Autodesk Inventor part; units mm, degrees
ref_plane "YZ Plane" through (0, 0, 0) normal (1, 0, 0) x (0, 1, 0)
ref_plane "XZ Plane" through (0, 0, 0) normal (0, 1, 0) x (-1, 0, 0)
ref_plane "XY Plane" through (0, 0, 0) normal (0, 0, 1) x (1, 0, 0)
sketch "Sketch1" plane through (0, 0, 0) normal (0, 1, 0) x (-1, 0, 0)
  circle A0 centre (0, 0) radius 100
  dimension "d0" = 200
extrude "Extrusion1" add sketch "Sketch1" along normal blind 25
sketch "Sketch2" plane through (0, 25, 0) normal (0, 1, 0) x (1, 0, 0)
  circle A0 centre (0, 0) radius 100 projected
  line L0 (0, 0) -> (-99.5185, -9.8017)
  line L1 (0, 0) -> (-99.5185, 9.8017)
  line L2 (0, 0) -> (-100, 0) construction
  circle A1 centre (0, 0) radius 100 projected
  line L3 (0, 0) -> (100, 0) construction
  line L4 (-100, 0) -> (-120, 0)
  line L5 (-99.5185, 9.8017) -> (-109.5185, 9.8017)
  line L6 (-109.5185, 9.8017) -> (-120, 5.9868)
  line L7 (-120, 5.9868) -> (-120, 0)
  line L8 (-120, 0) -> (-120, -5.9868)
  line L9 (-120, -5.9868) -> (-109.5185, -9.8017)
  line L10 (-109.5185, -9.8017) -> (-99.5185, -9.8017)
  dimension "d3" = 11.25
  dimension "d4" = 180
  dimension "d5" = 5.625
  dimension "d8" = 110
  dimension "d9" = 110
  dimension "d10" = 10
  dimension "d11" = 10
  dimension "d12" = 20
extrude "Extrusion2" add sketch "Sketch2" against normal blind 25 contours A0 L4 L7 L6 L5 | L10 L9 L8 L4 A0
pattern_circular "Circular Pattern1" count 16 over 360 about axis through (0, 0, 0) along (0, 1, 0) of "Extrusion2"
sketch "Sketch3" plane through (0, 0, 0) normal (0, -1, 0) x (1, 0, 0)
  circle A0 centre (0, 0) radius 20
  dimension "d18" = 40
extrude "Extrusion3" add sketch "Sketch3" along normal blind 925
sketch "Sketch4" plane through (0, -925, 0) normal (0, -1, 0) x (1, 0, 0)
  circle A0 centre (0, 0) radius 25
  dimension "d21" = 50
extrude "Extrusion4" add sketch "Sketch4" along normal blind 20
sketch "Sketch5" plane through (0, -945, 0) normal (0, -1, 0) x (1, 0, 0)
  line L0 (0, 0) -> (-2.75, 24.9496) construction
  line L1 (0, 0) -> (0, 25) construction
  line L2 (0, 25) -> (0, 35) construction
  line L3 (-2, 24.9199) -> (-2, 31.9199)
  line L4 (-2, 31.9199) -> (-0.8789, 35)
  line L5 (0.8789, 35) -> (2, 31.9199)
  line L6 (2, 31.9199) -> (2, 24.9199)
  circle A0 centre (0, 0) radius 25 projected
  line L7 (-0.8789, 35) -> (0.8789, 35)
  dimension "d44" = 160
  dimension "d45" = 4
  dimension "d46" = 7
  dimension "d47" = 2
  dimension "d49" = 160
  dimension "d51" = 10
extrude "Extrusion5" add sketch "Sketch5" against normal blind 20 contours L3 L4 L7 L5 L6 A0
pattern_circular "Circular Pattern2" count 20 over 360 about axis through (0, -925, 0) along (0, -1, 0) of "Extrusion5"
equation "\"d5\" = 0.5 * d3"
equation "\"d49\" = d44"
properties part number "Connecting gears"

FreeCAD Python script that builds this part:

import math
import FreeCAD as App
import Part
import Sketcher
Q = App.Units.Quantity

doc = App.newDocument("Part")
body = doc.addObject("PartDesign::Body", "Body")

sketch1 = body.newObject("Sketcher::SketchObject", "Sketch")
sketch1.AttachmentSupport = (doc.getObject("XZ_Plane"), [""])
sketch1.MapMode = "FlatFace"
sketch1.addGeometry(Part.Circle(App.Vector(0, 0, 0), App.Vector(0, 0, 1), 100), False)
sketch1.addConstraint([
    Sketcher.Constraint("Coincident", 0, 3, -1, 1),
    Sketcher.Constraint("Diameter", 0, 200.0),
])
pad1 = body.newObject("PartDesign::Pad", "Pad")
pad1.Profile = sketch1
pad1.Length = 25
pad1.Reversed = True

sketch2 = body.newObject("Sketcher::SketchObject", "Sketch001")
sketch2.AttachmentSupport = (doc.getObject("XZ_Plane"), [""])
sketch2.MapMode = "FlatFace"
sketch2.AttachmentOffset = App.Placement(App.Vector(0, 0, -25), App.Rotation())
sketch2.addGeometry([
    Part.LineSegment(App.Vector(-100, -10, 0), App.Vector(-110, -10, 0)),
    Part.LineSegment(App.Vector(-110, -10, 0), App.Vector(-120, -6, 0)),
    Part.LineSegment(App.Vector(-120, -6, 0), App.Vector(-120, 6, 0)),
    Part.LineSegment(App.Vector(-120, 6, 0), App.Vector(-110, 10, 0)),
    Part.LineSegment(App.Vector(-110, 10, 0), App.Vector(-100, 10, 0)),
    Part.ArcOfCircle(Part.Circle(App.Vector(0, 0, 0), App.Vector(0, 0, 1), 100), math.radians(174.38), math.radians(185.62)),
], False)
sketch2.addConstraint([
    Sketcher.Constraint("Coincident", 0, 2, 1, 1),
    Sketcher.Constraint("Coincident", 1, 2, 2, 1),
    Sketcher.Constraint("Coincident", 2, 2, 3, 1),
    Sketcher.Constraint("Coincident", 3, 2, 4, 1),
    Sketcher.Constraint("Coincident", 4, 2, 5, 1),
    Sketcher.Constraint("Coincident", 5, 2, 0, 1),
    Sketcher.Constraint("Horizontal", 0),
    Sketcher.Constraint("Vertical", 2),
    Sketcher.Constraint("Horizontal", 4),
    Sketcher.Constraint("Coincident", 5, 3, -1, 1),
    Sketcher.Constraint("Symmetric", 0, 2, 3, 2, -1),
    Sketcher.Constraint("Equal", 1, 3),
    Sketcher.Constraint("DistanceX", 0, 2, 0, 1, 10.0),
    Sketcher.Constraint("Angle", 3, Q("19.9997 deg")),
    Sketcher.Constraint("Radius", 5, 100.0),
    Sketcher.Constraint("DistanceX", 1, 2, -1, 1, 120.0),
    Sketcher.Constraint("DistanceY", 2, 1, 2, 2, 11.9736),
])
pad2 = body.newObject("PartDesign::Pad", "Pad001")
pad2.Profile = sketch2
pad2.Length = 25
doc.recompute()

polarpattern = body.newObject("PartDesign::PolarPattern", "PolarPattern")
polarpattern.Originals = [pad2]
polarpattern.Axis = (doc.getObject("Y_Axis"), [""])
polarpattern.Angle = 360
polarpattern.Occurrences = 16
body.Tip = polarpattern

sketch3 = body.newObject("Sketcher::SketchObject", "Sketch002")
sketch3.AttachmentSupport = (doc.getObject("XZ_Plane"), [""])
sketch3.MapMode = "FlatFace"
sketch3.addGeometry(Part.Circle(App.Vector(0, 0, 0), App.Vector(0, 0, 1), 20), False)
sketch3.addConstraint([
    Sketcher.Constraint("Coincident", 0, 3, -1, 1),
    Sketcher.Constraint("Diameter", 0, 40.0),
])
pad3 = body.newObject("PartDesign::Pad", "Pad002")
pad3.Profile = sketch3
pad3.Length = 925

sketch4 = body.newObject("Sketcher::SketchObject", "Sketch003")
sketch4.AttachmentSupport = (doc.getObject("XZ_Plane"), [""])
sketch4.MapMode = "FlatFace"
sketch4.AttachmentOffset = App.Placement(App.Vector(0, 0, 925), App.Rotation())
sketch4.addGeometry(Part.Circle(App.Vector(0, 0, 0), App.Vector(0, 0, 1), 25), False)
sketch4.addConstraint([
    Sketcher.Constraint("Coincident", 0, 3, -1, 1),
    Sketcher.Constraint("Diameter", 0, 50.0),
])
pad4 = body.newObject("PartDesign::Pad", "Pad003")
pad4.Profile = sketch4
pad4.Length = 20

sketch5 = body.newObject("Sketcher::SketchObject", "Sketch004")
sketch5.AttachmentSupport = (doc.getObject("XZ_Plane"), [""])
sketch5.MapMode = "FlatFace"
sketch5.AttachmentOffset = App.Placement(App.Vector(0, 0, 945), App.Rotation())
sketch5.addGeometry([
    Part.LineSegment(App.Vector(-2, 31.9, 0), App.Vector(-2, 24.9, 0)),
    Part.ArcOfCircle(Part.Circle(App.Vector(0, 0, 0), App.Vector(0, 0, 1), 25), math.radians(85.41), math.radians(94.59)),
    Part.LineSegment(App.Vector(2, 24.9, 0), App.Vector(2, 31.9, 0)),
    Part.LineSegment(App.Vector(2, 31.9, 0), App.Vector(0.9, 35, 0)),
    Part.LineSegment(App.Vector(0.9, 35, 0), App.Vector(-0.9, 35, 0)),
    Part.LineSegment(App.Vector(-0.9, 35, 0), App.Vector(-2, 31.9, 0)),
], False)
sketch5.addConstraint([
    Sketcher.Constraint("Coincident", 0, 2, 1, 2),
    Sketcher.Constraint("Coincident", 1, 1, 2, 1),
    Sketcher.Constraint("Coincident", 2, 2, 3, 1),
    Sketcher.Constraint("Coincident", 3, 2, 4, 1),
    Sketcher.Constraint("Coincident", 4, 2, 5, 1),
    Sketcher.Constraint("Coincident", 5, 2, 0, 1),
    Sketcher.Constraint("Vertical", 0),
    Sketcher.Constraint("Vertical", 2),
    Sketcher.Constraint("Horizontal", 4),
    Sketcher.Constraint("Coincident", 1, 3, -1, 1),
    Sketcher.Constraint("Symmetric", 2, 2, 5, 2, -2),
    Sketcher.Constraint("Equal", 3, 5),
    Sketcher.Constraint("DistanceY", 0, 2, 0, 1, 7.0),
    Sketcher.Constraint("DistanceX", 0, 2, -1, 1, 2.0),
    Sketcher.Constraint("Radius", 1, 25.0),
    Sketcher.Constraint("Angle", 3, Q("110.0006 deg")),
    Sketcher.Constraint("DistanceY", -1, 1, 3, 2, 35.0),
])
pad5 = body.newObject("PartDesign::Pad", "Pad004")
pad5.Profile = sketch5
pad5.Length = 20
pad5.Reversed = True
doc.recompute()

polarpattern2 = body.newObject("PartDesign::PolarPattern", "PolarPattern001")
polarpattern2.Originals = [pad5]
polarpattern2.Axis = (doc.getObject("Y_Axis"), [""])
polarpattern2.Angle = 360
polarpattern2.Occurrences = 20
body.Tip = polarpattern2

doc.recompute()
